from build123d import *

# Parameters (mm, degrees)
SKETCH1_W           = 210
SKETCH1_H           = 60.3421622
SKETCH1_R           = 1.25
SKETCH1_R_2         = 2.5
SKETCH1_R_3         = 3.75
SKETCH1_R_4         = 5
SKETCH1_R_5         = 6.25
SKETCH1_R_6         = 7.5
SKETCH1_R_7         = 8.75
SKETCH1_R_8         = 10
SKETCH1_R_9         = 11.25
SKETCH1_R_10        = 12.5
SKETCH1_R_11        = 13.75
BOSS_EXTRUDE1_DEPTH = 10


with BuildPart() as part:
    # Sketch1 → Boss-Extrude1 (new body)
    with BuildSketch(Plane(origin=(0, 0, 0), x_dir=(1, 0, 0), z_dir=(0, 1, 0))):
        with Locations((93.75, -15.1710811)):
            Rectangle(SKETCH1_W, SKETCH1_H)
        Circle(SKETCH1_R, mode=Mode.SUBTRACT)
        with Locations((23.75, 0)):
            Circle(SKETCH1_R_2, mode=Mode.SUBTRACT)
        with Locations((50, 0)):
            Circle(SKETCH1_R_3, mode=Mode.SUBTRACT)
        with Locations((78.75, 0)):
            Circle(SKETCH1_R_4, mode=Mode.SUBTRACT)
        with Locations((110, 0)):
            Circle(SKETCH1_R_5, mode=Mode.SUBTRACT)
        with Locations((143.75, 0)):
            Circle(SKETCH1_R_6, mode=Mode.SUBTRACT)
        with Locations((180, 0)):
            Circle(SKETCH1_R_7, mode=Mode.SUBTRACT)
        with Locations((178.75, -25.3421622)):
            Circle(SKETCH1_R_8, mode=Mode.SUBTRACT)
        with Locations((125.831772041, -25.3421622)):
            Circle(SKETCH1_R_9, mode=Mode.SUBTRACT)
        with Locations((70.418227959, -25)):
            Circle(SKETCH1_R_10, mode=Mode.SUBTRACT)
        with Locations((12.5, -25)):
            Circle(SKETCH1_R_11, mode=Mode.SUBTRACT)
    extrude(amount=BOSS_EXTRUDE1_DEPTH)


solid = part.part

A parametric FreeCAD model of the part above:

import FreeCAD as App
import Part
import Sketcher
from FreeCAD import Vector
Q = App.Units.Quantity


def add_polygon(sketch, points):
    """Adds a closed chain of lines whose ends are joined by coincident constraints."""
    first, n = sketch.GeometryCount, len(points)
    for a, b in zip(points, points[1:] + points[:1]):
        sketch.addGeometry(Part.LineSegment(App.Vector(*a, 0), App.Vector(*b, 0)), False)
    for i in range(n):
        sketch.addConstraint(Sketcher.Constraint("Coincident", first + i, 2, first + (i + 1) % n, 1))

doc = App.newDocument("Part")
params = doc.addObject("Spreadsheet::Sheet", "Params")
for row, (alias, value) in enumerate([
    ("sketch1_diameter", "25 mm"),
    ("sketch1_diameter2", "20 mm"),
    ("sketch1_diameter3", "5 mm"),
    ("sketch1_diameter4", "10 mm"),
    ("sketch1_diameter5", "15 mm"),
    ("pad1_length", "10 mm"),
], start=1):
    params.set(f"A{row}", alias)
    params.set(f"B{row}", "=" + value)
    params.setAlias(f"B{row}", alias)

body = doc.addObject("PartDesign::Body", "Body")

# Sketch on XZ plane
sketch1 = body.newObject("Sketcher::SketchObject", "Sketch")
sketch1.AttachmentSupport = (doc.getObject("XZ_Plane"), [""])
sketch1.MapMode = "FlatFace"
add_polygon(sketch1, [(-11.25, -15), (-11.25, 45.342162), (198.75, 45.342162), (198.75, -15)])  # lines 0-3
sketch1.addGeometry(Part.Circle(Vector(12.5, 25, 0), Vector(0, 0, 1), 13.75), False)  # 4
sketch1.addGeometry(Part.Circle(Vector(70.418228, 25, 0), Vector(0, 0, 1), 12.5), False)  # 5
sketch1.addGeometry(Part.Circle(Vector(125.831772, 25.342162, 0), Vector(0, 0, 1), 11.25), False)  # 6
sketch1.addGeometry(Part.Circle(Vector(178.75, 25.342162, 0), Vector(0, 0, 1), 10), False)  # 7
sketch1.addGeometry(Part.Circle(Vector(0, 0, 0), Vector(0, 0, 1), 1.25), False)  # 8
sketch1.addGeometry(Part.Circle(Vector(23.75, 0, 0), Vector(0, 0, 1), 2.5), False)  # 9
sketch1.addGeometry(Part.Circle(Vector(50, 0, 0), Vector(0, 0, 1), 3.75), False)  # 10
sketch1.addGeometry(Part.Circle(Vector(78.75, 0, 0), Vector(0, 0, 1), 5), False)  # 11
sketch1.addGeometry(Part.Circle(Vector(110, 0, 0), Vector(0, 0, 1), 6.25), False)  # 12
sketch1.addGeometry(Part.Circle(Vector(143.75, 0, 0), Vector(0, 0, 1), 7.5), False)  # 13
sketch1.addGeometry(Part.Circle(Vector(180, 0, 0), Vector(0, 0, 1), 8.75), False)  # 14
sketch1.addConstraint([
    Sketcher.Constraint("Vertical", 0),
    Sketcher.Constraint("Horizontal", 1),
    Sketcher.Constraint("Vertical", 2),
    Sketcher.Constraint("Horizontal", 3),
    Sketcher.Constraint("Coincident", 8, 3, -1, 1),
    Sketcher.Constraint("PointOnObject", 9, 3, -1),
    Sketcher.Constraint("PointOnObject", 10, 3, -1),
    Sketcher.Constraint("PointOnObject", 11, 3, -1),
    Sketcher.Constraint("PointOnObject", 12, 3, -1),
    Sketcher.Constraint("PointOnObject", 13, 3, -1),
    Sketcher.Constraint("PointOnObject", 14, 3, -1),
    Sketcher.Constraint("Horizontal", 4, 3, 5, 3),
    Sketcher.Constraint("Horizontal", 6, 3, 7, 3),
    Sketcher.Constraint("Diameter", 5, Q("25 mm")),
    Sketcher.Constraint("Diameter", 7, Q("20 mm")),
    Sketcher.Constraint("Diameter", 9, Q("5 mm")),
    Sketcher.Constraint("Diameter", 11, Q("10 mm")),
    Sketcher.Constraint("Diameter", 13, Q("15 mm")),
    Sketcher.Constraint("Diameter", 4, Q("27.5 mm")),
    Sketcher.Constraint("Diameter", 6, Q("22.5 mm")),
    Sketcher.Constraint("Diameter", 8, Q("2.5 mm")),
    Sketcher.Constraint("Diameter", 10, Q("7.5 mm")),
    Sketcher.Constraint("Diameter", 12, Q("12.5 mm")),
    Sketcher.Constraint("Diameter", 14, Q("17.5 mm")),
    Sketcher.Constraint("DistanceX", 1, 1, 1, 2, Q("210 mm")),
    Sketcher.Constraint("DistanceY", -1, 1, 4, 3, Q("25 mm")),
    Sketcher.Constraint("DistanceX", -1, 1, 10, 3, Q("50 mm")),
    Sketcher.Constraint("DistanceX", -1, 1, 12, 3, Q("110 mm")),
    Sketcher.Constraint("DistanceX", -1, 1, 14, 3, Q("180 mm")),
    Sketcher.Constraint("DistanceY", 2, 2, -1, 1, Q("15 mm")),
    Sketcher.Constraint("DistanceX", 9, 3, 7, 3, Q("155 mm")),
    Sketcher.Constraint("DistanceX", 9, 3, 11, 3, Q("55 mm")),
    Sketcher.Constraint("DistanceX", 13, 3, 7, 3, Q("35 mm")),
    Sketcher.Constraint("DistanceX", 0, 2, 9, 3, Q("35 mm")),
    Sketcher.Constraint("DistanceY", 7, 3, 1, 2, Q("20 mm")),
    Sketcher.Constraint("DistanceX", -1, 1, 4, 3, Q("12.5 mm")),
    Sketcher.Constraint("DistanceX", -1, 1, 7, 3, Q("178.75 mm")),
    Sketcher.Constraint("DistanceY", 0, 1, 0, 2, Q("60.342162 mm")),
    Sketcher.Constraint("DistanceX", -1, 1, 5, 3, Q("70.418228 mm")),
    Sketcher.Constraint("DistanceX", -1, 1, 6, 3, Q("125.831772 mm")),
])
sketch1.setExpression("Constraints[17]", "Params.sketch1_diameter")
sketch1.setExpression("Constraints[18]", "Params.sketch1_diameter2")
sketch1.setExpression("Constraints[19]", "Params.sketch1_diameter3")
sketch1.setExpression("Constraints[20]", "Params.sketch1_diameter4")
sketch1.setExpression("Constraints[21]", "Params.sketch1_diameter5")
pad1 = body.newObject("PartDesign::Pad", "Pad")
pad1.Profile = sketch1
pad1.setExpression("Length", "Params.pad1_length")
pad1.Reversed = True

doc.recompute()
